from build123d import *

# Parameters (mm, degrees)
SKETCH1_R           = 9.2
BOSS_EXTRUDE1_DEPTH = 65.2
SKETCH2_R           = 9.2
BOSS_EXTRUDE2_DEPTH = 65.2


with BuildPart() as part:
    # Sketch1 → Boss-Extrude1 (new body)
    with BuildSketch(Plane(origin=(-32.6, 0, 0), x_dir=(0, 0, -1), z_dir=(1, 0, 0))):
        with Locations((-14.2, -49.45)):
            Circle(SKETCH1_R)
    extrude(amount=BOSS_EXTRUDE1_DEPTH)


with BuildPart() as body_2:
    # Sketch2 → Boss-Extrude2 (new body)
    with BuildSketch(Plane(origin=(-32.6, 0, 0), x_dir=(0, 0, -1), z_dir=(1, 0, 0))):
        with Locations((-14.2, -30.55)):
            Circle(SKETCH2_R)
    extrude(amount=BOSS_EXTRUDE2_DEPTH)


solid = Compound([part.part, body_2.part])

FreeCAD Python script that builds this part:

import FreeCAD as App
import Part
import Sketcher

V = App.Vector

doc = App.newDocument("Part")
body = doc.addObject("PartDesign::Body", "Body")

# Sketch on YZ plane
sketch1 = body.newObject("Sketcher::SketchObject", "Sketch")
sketch1.AttachmentSupport = (doc.getObject("YZ_Plane"), [""])
sketch1.MapMode = "FlatFace"
sketch1.AttachmentOffset = App.Placement(V(0, 0, -32.6), App.Rotation())
sketch1.addGeometry(Part.Circle(V(-49, 14, 0), V(0, 0, 1), 9), False)
sketch1.addConstraint(Sketcher.Constraint("Diameter", 0, 18.4))
sketch1.addConstraint(Sketcher.Constraint("DistanceY", -1, 1, 0, 3, 14.2))
sketch1.addConstraint(Sketcher.Constraint("DistanceX", 0, 3, -1, 1, 49.45))
pad1 = body.newObject("PartDesign::Pad", "Pad")
pad1.Profile = sketch1
pad1.Length = 65.2
body2 = doc.addObject("PartDesign::Body", "Body001")

# Sketch on YZ plane
sketch2 = body2.newObject("Sketcher::SketchObject", "Sketch001")
sketch2.AttachmentSupport = (doc.getObject("YZ_Plane001"), [""])
sketch2.MapMode = "FlatFace"
sketch2.AttachmentOffset = App.Placement(V(0, 0, -32.6), App.Rotation())
sketch2.addGeometry(Part.Circle(V(-31, 14, 0), V(0, 0, 1), 9), False)
sketch2.addConstraint(Sketcher.Constraint("Diameter", 0, 18.4))
sketch2.addConstraint(Sketcher.Constraint("DistanceY", -1, 1, 0, 3, 14.2))
sketch2.addConstraint(Sketcher.Constraint("DistanceX", 0, 3, -1, 1, 30.55))
pad2 = body2.newObject("PartDesign::Pad", "Pad001")
pad2.Profile = sketch2
pad2.Length = 65.2

doc.recompute()
